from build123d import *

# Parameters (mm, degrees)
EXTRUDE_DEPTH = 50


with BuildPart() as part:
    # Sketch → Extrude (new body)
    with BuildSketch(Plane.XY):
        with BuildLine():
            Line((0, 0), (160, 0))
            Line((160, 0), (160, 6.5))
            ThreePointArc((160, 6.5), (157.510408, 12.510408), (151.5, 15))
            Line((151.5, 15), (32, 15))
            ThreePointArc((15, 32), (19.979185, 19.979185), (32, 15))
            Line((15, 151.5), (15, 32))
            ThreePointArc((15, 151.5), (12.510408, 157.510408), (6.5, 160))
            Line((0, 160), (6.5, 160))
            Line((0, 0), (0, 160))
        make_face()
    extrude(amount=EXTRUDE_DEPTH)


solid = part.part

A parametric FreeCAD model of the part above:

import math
import FreeCAD as App
import Part
import Sketcher
from FreeCAD import Vector
Q = App.Units.Quantity

doc = App.newDocument("Part")
body = doc.addObject("PartDesign::Body", "Body")

sketch1 = body.newObject("Sketcher::SketchObject", "Sketch")
sketch1.AttachmentSupport = (doc.getObject("XY_Plane"), [""])
sketch1.MapMode = "FlatFace"
sketch1.addGeometry([
    Part.LineSegment(Vector(0, 0, 0), Vector(160, 0, 0)),
    Part.LineSegment(Vector(160, 0, 0), Vector(160, 6, 0)),
    Part.ArcOfCircle(Part.Circle(Vector(152, 7, 0), Vector(0, 0, 1), 8), math.radians(0), math.radians(90)),
    Part.LineSegment(Vector(152, 15, 0), Vector(32, 15, 0)),
    Part.ArcOfCircle(Part.Circle(Vector(32, 32, 0), Vector(0, 0, 1), 17), math.radians(-180), math.radians(-90)),
    Part.LineSegment(Vector(15, 32, 0), Vector(15, 152, 0)),
    Part.ArcOfCircle(Part.Circle(Vector(7, 152, 0), Vector(0, 0, 1), 8), math.radians(0), math.radians(90)),
    Part.LineSegment(Vector(6, 160, 0), Vector(0, 160, 0)),
    Part.LineSegment(Vector(0, 160, 0), Vector(0, 0, 0)),
], False)
sketch1.addConstraint([
    Sketcher.Constraint("Coincident", 0, 2, 1, 1),
    Sketcher.Constraint("Tangent", 1, 2, 2, 1),
    Sketcher.Constraint("Tangent", 2, 2, 3, 1),
    Sketcher.Constraint("Tangent", 3, 2, 4, 2),
    Sketcher.Constraint("Tangent", 4, 1, 5, 1),
    Sketcher.Constraint("Tangent", 5, 2, 6, 1),
    Sketcher.Constraint("Tangent", 6, 2, 7, 1),
    Sketcher.Constraint("Coincident", 7, 2, 8, 1),
    Sketcher.Constraint("Coincident", 8, 2, 0, 1),
    Sketcher.Constraint("Horizontal", 0),
    Sketcher.Constraint("Vertical", 1),
    Sketcher.Constraint("Horizontal", 3),
    Sketcher.Constraint("Vertical", 5),
    Sketcher.Constraint("Horizontal", 7),
    Sketcher.Constraint("Vertical", 8),
    Sketcher.Constraint("Coincident", 8, 2, -1, 1),
    Sketcher.Constraint("Equal", 2, 6),
    Sketcher.Constraint("Equal", 7, 1),
    Sketcher.Constraint("Equal", 3, 5),
    Sketcher.Constraint("Radius", 4, Q("17.000001 mm")),
    Sketcher.Constraint("Radius", 2, Q("8.499999 mm")),
    Sketcher.Constraint("DistanceX", 0, 1, 0, 2, Q("160 mm")),
    Sketcher.Constraint("DistanceX", 3, 2, 3, 1, Q("119.5 mm")),
])
pad1 = body.newObject("PartDesign::Pad", "Pad")
pad1.Profile = sketch1
pad1.Length = 50

doc.recompute()
